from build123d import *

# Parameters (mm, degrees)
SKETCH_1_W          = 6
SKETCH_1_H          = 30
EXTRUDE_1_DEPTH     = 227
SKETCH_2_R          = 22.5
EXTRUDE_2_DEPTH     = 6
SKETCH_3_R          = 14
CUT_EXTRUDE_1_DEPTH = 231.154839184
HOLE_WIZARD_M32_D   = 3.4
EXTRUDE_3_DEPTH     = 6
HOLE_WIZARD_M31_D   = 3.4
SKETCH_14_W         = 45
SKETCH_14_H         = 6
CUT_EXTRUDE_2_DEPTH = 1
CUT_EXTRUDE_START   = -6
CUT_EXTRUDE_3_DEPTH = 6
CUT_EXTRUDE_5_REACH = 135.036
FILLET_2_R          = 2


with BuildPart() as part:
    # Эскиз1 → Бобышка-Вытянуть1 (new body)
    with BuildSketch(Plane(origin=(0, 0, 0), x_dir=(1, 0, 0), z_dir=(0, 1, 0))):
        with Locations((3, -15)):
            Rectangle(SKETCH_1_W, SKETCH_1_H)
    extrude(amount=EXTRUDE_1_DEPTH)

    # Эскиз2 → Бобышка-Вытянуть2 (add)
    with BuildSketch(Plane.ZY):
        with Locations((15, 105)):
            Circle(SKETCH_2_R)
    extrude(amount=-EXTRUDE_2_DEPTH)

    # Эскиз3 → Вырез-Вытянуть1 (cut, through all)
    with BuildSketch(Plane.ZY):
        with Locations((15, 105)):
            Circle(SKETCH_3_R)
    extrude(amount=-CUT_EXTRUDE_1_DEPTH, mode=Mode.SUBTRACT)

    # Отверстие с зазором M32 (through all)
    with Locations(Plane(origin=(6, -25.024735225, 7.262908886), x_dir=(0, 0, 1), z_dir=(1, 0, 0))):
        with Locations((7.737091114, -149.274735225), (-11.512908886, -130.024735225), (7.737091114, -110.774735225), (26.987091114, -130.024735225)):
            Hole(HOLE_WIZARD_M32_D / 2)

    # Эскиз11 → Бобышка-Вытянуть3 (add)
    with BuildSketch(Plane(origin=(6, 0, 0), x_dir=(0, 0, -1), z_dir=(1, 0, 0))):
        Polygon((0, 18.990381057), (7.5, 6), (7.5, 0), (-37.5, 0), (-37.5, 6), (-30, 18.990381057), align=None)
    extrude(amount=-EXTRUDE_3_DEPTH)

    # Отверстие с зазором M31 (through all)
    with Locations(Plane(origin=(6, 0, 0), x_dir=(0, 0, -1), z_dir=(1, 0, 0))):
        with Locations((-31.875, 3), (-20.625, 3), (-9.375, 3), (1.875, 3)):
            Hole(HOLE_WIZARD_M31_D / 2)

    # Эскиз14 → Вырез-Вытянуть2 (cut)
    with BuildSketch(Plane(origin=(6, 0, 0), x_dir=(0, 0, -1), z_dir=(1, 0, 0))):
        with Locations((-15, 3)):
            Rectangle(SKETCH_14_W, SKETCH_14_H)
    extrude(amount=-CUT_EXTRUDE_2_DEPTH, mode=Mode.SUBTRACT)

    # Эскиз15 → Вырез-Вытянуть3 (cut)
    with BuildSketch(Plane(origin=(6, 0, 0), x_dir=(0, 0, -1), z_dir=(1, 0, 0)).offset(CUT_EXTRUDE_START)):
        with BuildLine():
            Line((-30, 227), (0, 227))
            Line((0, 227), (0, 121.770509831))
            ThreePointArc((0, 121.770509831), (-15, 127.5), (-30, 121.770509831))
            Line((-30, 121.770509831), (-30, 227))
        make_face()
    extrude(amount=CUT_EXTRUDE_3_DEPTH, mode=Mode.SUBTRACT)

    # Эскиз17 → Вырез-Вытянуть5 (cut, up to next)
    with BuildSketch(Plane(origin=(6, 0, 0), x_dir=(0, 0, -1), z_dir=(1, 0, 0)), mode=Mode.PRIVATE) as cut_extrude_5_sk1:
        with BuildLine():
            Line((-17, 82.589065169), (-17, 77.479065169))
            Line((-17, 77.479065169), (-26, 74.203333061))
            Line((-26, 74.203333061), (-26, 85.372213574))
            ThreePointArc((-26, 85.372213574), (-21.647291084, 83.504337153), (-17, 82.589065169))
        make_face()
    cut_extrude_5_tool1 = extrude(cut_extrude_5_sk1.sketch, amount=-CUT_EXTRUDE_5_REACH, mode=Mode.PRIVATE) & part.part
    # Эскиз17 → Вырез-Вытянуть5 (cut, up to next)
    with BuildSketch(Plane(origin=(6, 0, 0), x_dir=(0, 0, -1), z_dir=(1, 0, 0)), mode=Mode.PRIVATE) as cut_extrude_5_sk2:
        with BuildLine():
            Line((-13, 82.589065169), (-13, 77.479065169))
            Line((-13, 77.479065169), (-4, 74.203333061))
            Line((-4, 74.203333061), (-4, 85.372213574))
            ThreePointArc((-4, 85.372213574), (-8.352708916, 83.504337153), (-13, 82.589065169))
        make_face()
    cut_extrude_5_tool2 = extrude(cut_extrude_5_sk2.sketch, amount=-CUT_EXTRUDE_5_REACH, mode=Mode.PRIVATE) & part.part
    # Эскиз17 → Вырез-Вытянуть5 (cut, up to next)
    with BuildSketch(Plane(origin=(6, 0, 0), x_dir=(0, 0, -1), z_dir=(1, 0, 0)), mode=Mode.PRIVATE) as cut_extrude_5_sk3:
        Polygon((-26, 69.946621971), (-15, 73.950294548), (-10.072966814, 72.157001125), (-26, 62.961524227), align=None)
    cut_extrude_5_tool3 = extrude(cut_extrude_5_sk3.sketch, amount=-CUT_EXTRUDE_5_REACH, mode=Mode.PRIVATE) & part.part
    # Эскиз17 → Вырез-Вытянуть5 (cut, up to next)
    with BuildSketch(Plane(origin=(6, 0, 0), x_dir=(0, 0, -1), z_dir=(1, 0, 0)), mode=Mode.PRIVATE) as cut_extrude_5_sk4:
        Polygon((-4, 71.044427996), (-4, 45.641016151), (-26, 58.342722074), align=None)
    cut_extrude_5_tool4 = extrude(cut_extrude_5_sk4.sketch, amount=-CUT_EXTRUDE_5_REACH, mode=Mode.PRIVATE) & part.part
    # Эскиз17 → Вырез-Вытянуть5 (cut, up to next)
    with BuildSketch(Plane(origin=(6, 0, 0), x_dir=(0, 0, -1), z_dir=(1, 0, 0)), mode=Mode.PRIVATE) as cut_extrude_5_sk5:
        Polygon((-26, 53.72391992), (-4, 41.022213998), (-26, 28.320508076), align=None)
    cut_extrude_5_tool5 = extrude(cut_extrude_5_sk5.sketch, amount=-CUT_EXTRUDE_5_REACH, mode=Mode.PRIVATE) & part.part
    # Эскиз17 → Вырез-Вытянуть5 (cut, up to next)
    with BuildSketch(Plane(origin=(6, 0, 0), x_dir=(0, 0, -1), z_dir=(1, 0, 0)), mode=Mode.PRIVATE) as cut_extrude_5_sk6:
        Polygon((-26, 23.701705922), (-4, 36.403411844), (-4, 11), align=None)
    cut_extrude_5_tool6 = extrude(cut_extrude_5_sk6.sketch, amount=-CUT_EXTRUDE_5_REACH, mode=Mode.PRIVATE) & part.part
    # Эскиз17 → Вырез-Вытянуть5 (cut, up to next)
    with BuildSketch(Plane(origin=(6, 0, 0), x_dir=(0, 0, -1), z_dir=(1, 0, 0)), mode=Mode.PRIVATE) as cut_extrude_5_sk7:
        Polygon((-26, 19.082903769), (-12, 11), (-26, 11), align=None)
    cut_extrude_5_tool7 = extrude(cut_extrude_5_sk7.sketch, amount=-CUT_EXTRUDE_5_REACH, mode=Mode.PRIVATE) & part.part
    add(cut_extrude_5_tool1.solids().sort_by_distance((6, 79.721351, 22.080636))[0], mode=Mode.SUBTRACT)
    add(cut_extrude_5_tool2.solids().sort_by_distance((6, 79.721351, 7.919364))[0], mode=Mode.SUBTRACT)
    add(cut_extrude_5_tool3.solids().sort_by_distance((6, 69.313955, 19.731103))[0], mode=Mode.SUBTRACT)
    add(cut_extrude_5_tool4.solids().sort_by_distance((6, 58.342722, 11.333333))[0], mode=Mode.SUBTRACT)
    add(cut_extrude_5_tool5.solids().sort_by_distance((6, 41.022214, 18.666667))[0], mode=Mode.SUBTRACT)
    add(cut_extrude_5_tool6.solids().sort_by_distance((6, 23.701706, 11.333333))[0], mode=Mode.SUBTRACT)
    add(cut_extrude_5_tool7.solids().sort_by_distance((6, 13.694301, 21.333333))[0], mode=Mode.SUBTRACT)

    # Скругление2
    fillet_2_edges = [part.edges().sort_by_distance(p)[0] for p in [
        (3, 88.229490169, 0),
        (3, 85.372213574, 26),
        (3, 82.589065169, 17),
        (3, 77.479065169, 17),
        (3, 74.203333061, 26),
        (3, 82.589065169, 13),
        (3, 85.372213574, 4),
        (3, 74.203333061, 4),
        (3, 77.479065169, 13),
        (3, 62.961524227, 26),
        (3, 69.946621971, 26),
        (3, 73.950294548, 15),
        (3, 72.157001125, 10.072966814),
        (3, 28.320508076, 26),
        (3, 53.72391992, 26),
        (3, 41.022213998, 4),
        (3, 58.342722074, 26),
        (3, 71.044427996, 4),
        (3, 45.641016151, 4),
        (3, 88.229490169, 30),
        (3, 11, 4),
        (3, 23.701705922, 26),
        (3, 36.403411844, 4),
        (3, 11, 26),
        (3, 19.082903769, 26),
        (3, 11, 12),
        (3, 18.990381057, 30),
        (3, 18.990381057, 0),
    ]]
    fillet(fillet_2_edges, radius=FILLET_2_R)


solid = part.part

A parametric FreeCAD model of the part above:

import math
import FreeCAD as App
import Part
import Sketcher
from FreeCAD import Vector
Q = App.Units.Quantity


def edges_at(feature, points):
    """Names of the edges that pass closest to the given points."""
    edges = feature.Shape.Edges
    near = lambda p: min(range(len(edges)), key=lambda i: edges[i].distToShape(Part.Vertex(*p))[0])
    return sorted({f"Edge{near(p) + 1}" for p in points})


def add_polygon(sketch, points):
    """Adds a closed chain of lines whose ends are joined by coincident constraints."""
    first, n = sketch.GeometryCount, len(points)
    for a, b in zip(points, points[1:] + points[:1]):
        sketch.addGeometry(Part.LineSegment(App.Vector(*a, 0), App.Vector(*b, 0)), False)
    for i in range(n):
        sketch.addConstraint(Sketcher.Constraint("Coincident", first + i, 2, first + (i + 1) % n, 1))

doc = App.newDocument("Part")
body = doc.addObject("PartDesign::Body", "Body")

# Sketch on XZ plane
sketch1 = body.newObject("Sketcher::SketchObject", "Sketch")
sketch1.AttachmentSupport = (doc.getObject("XZ_Plane"), [""])
sketch1.MapMode = "FlatFace"
add_polygon(sketch1, [(0, 0), (0, 30), (6, 30), (6, 0)])  # lines 0-3
sketch1.addConstraint([
    Sketcher.Constraint("Vertical", 0),
    Sketcher.Constraint("Horizontal", 1),
    Sketcher.Constraint("Vertical", 2),
    Sketcher.Constraint("Horizontal", 3),
    Sketcher.Constraint("Coincident", 3, 2, -1, 1),
    Sketcher.Constraint("DistanceX", 1, 1, 1, 2, Q("6 mm")),
    Sketcher.Constraint("DistanceY", 0, 1, 0, 2, Q("30 mm")),
])
pad1 = body.newObject("PartDesign::Pad", "Pad")
pad1.Profile = sketch1
pad1.Length = 227
pad1.Reversed = True

# Sketch on YZ plane
sketch2 = body.newObject("Sketcher::SketchObject", "Sketch001")
sketch2.AttachmentSupport = (doc.getObject("YZ_Plane"), [""])
sketch2.MapMode = "FlatFace"
sketch2.addGeometry(Part.Circle(Vector(105, 15, 0), Vector(0, 0, 1), 22), False)
sketch2.addConstraint([
    Sketcher.Constraint("Diameter", 0, Q("45 mm")),
    Sketcher.Constraint("DistanceX", -1, 1, 0, 3, Q("105 mm")),
    Sketcher.Constraint("DistanceY", -1, 1, 0, 3, Q("15 mm")),
])
pad2 = body.newObject("PartDesign::Pad", "Pad001")
pad2.Profile = sketch2
pad2.Length = 6

# Sketch on YZ plane
sketch3 = body.newObject("Sketcher::SketchObject", "Sketch002")
sketch3.AttachmentSupport = (doc.getObject("YZ_Plane"), [""])
sketch3.MapMode = "FlatFace"
sketch3.addGeometry(Part.Circle(Vector(105, 15, 0), Vector(0, 0, 1), 14), False)
sketch3.addConstraint([
    Sketcher.Constraint("Diameter", 0, Q("28 mm")),
    Sketcher.Constraint("DistanceX", -1, 1, 0, 3, Q("105 mm")),
    Sketcher.Constraint("DistanceY", -1, 1, 0, 3, Q("15 mm")),
])
pocket1 = body.newObject("PartDesign::Pocket", "Pocket")
pocket1.Profile = sketch3
pocket1.Type = "ThroughAll"
pocket1.Reversed = True

# Sketch on YZ plane
sketch4 = body.newObject("Sketcher::SketchObject", "Sketch003")
sketch4.AttachmentSupport = (doc.getObject("YZ_Plane"), [""])
sketch4.MapMode = "FlatFace"
sketch4.AttachmentOffset = App.Placement(Vector(0, 0, 6), App.Rotation())
sketch4.addGeometry([
    Part.Circle(Vector(124.2, 15, 0), Vector(0, 0, 1), 1.7),
    Part.Circle(Vector(105, -4.2, 0), Vector(0, 0, 1), 1.7),
    Part.Circle(Vector(85.8, 15, 0), Vector(0, 0, 1), 1.7),
    Part.Circle(Vector(105, 34.2, 0), Vector(0, 0, 1), 1.7),
], False)
sketch4.addConstraint([
    Sketcher.Constraint("Equal", 0, 1),
    Sketcher.Constraint("Equal", 1, 2),
    Sketcher.Constraint("Equal", 2, 3),
    Sketcher.Constraint("Horizontal", 0, 3, 2, 3),
    Sketcher.Constraint("Vertical", 1, 3, 3, 3),
    Sketcher.Constraint("Diameter", 0, Q("3.4 mm")),
    Sketcher.Constraint("DistanceY", -1, 1, 0, 3, Q("15 mm")),
    Sketcher.Constraint("DistanceX", -1, 1, 1, 3, Q("105 mm")),
    Sketcher.Constraint("DistanceX", 2, 3, 0, 3, Q("38.5 mm")),
    Sketcher.Constraint("DistanceY", 1, 3, 3, 3, Q("38.5 mm")),
    Sketcher.Constraint("DistanceX", -1, 1, 0, 3, Q("124.25 mm")),
    Sketcher.Constraint("DistanceY", 1, 3, -1, 1, Q("4.25 mm")),
])
doc.recompute()
hole = body.newObject("PartDesign::Hole", "Hole")
hole.Profile = sketch4
hole.ThreadType = "None"
hole.Diameter = 3.4
hole.DepthType = "ThroughAll"

# Sketch on YZ plane
sketch5 = body.newObject("Sketcher::SketchObject", "Sketch004")
sketch5.AttachmentSupport = (doc.getObject("YZ_Plane"), [""])
sketch5.MapMode = "FlatFace"
sketch5.AttachmentOffset = App.Placement(Vector(0, 0, 6), App.Rotation())
add_polygon(sketch5, [(6, -8), (19, 0), (19, 30), (6, 38), (0, 38), (0, -8)])  # lines 0-5
sketch5.addConstraint([
    Sketcher.Constraint("Vertical", 1),
    Sketcher.Constraint("Horizontal", 3),
    Sketcher.Constraint("Vertical", 4),
    Sketcher.Constraint("Horizontal", 5),
    Sketcher.Constraint("PointOnObject", 0, 2, -1),
    Sketcher.Constraint("PointOnObject", 3, 2, -2),
    Sketcher.Constraint("Vertical", 2, 2, 5, 2),
    Sketcher.Constraint("Equal", 0, 2),
    Sketcher.Constraint("DistanceX", 3, 2, 3, 1, Q("6 mm")),
    Sketcher.Constraint("DistanceY", 1, 1, 1, 2, Q("30 mm")),
    Sketcher.Constraint("DistanceY", 4, 2, 4, 1, Q("45 mm")),
    Sketcher.Constraint("Angle", 0, Q("30 deg")),
])
pad3 = body.newObject("PartDesign::Pad", "Pad002")
pad3.Profile = sketch5
pad3.Length = 6
pad3.Reversed = True

# Sketch on YZ plane
sketch6 = body.newObject("Sketcher::SketchObject", "Sketch005")
sketch6.AttachmentSupport = (doc.getObject("YZ_Plane"), [""])
sketch6.MapMode = "FlatFace"
sketch6.AttachmentOffset = App.Placement(Vector(0, 0, 6), App.Rotation())
sketch6.addGeometry([
    Part.Circle(Vector(3, 31.9, 0), Vector(0, 0, 1), 1.7),
    Part.Circle(Vector(3, 20.6, 0), Vector(0, 0, 1), 1.7),
    Part.Circle(Vector(3, 9.4, 0), Vector(0, 0, 1), 1.7),
    Part.Circle(Vector(3, -1.9, 0), Vector(0, 0, 1), 1.7),
], False)
sketch6.addConstraint([
    Sketcher.Constraint("Equal", 0, 1),
    Sketcher.Constraint("Equal", 1, 2),
    Sketcher.Constraint("Equal", 2, 3),
    Sketcher.Constraint("Vertical", 0, 3, 1, 3),
    Sketcher.Constraint("Vertical", 1, 3, 2, 3),
    Sketcher.Constraint("Vertical", 2, 3, 3, 3),
    Sketcher.Constraint("Diameter", 0, Q("3.4 mm")),
    Sketcher.Constraint("DistanceX", -1, 1, 0, 3, Q("3 mm")),
    Sketcher.Constraint("DistanceY", 2, 3, 0, 3, Q("22.5 mm")),
    Sketcher.Constraint("DistanceY", 3, 3, 1, 3, Q("22.5 mm")),
    Sketcher.Constraint("DistanceY", 1, 3, 0, 3, Q("11.25 mm")),
    Sketcher.Constraint("DistanceY", -1, 1, 0, 3, Q("31.875 mm")),
])
doc.recompute()
hole2 = body.newObject("PartDesign::Hole", "Hole001")
hole2.Profile = sketch6
hole2.ThreadType = "None"
hole2.Diameter = 3.4
hole2.DepthType = "ThroughAll"

# Sketch on YZ plane
sketch7 = body.newObject("Sketcher::SketchObject", "Sketch006")
sketch7.AttachmentSupport = (doc.getObject("YZ_Plane"), [""])
sketch7.MapMode = "FlatFace"
sketch7.AttachmentOffset = App.Placement(Vector(0, 0, 6), App.Rotation())
add_polygon(sketch7, [(6, 38), (0, 38), (0, -8), (6, -8)])  # lines 0-3
sketch7.addConstraint([
    Sketcher.Constraint("Horizontal", 0),
    Sketcher.Constraint("Vertical", 1),
    Sketcher.Constraint("Horizontal", 2),
    Sketcher.Constraint("Vertical", 3),
    Sketcher.Constraint("PointOnObject", 0, 2, -2),
    Sketcher.Constraint("DistanceX", 0, 2, 0, 1, Q("6 mm")),
    Sketcher.Constraint("DistanceY", 1, 2, 1, 1, Q("45 mm")),
    Sketcher.Constraint("DistanceY", -1, 1, 0, 2, Q("37.5 mm")),
])
pocket2 = body.newObject("PartDesign::Pocket", "Pocket001")
pocket2.Profile = sketch7
pocket2.Length = 1

# Sketch on YZ plane
sketch8 = body.newObject("Sketcher::SketchObject", "Sketch007")
sketch8.AttachmentSupport = (doc.getObject("YZ_Plane"), [""])
sketch8.MapMode = "FlatFace"
sketch8.addGeometry([
    Part.LineSegment(Vector(227, 0, 0), Vector(227, 30, 0)),
    Part.LineSegment(Vector(227, 30, 0), Vector(122, 30, 0)),
    Part.ArcOfCircle(Part.Circle(Vector(105, 15, 0), Vector(0, 0, 1), 22), math.radians(-42), math.radians(42)),
    Part.LineSegment(Vector(122, 0, 0), Vector(227, 0, 0)),
], False)
sketch8.addConstraint([
    Sketcher.Constraint("Coincident", 0, 2, 1, 1),
    Sketcher.Constraint("Coincident", 1, 2, 2, 2),
    Sketcher.Constraint("Coincident", 2, 1, 3, 1),
    Sketcher.Constraint("Coincident", 3, 2, 0, 1),
    Sketcher.Constraint("Vertical", 0),
    Sketcher.Constraint("Horizontal", 1),
    Sketcher.Constraint("Horizontal", 3),
    Sketcher.Constraint("PointOnObject", 2, 1, -1),
    Sketcher.Constraint("Vertical", 1, 2, 2, 1),
    Sketcher.Constraint("Radius", 2, Q("22.5 mm")),
    Sketcher.Constraint("DistanceY", 0, 1, 0, 2, Q("30 mm")),
    Sketcher.Constraint("DistanceX", -1, 1, 2, 3, Q("105 mm")),
    Sketcher.Constraint("DistanceX", -1, 1, 0, 2, Q("227 mm")),
])
pocket3 = body.newObject("PartDesign::Pocket", "Pocket002")
pocket3.Profile = sketch8
pocket3.Length = 6
pocket3.Reversed = True

# Sketch on YZ plane
sketch9 = body.newObject("Sketcher::SketchObject", "Sketch008")
sketch9.AttachmentSupport = (doc.getObject("YZ_Plane"), [""])
sketch9.MapMode = "FlatFace"
sketch9.AttachmentOffset = App.Placement(Vector(0, 0, 6), App.Rotation())
sketch9.addGeometry([
    Part.LineSegment(Vector(77, 17, 0), Vector(83, 17, 0)),
    Part.ArcOfCircle(Part.Circle(Vector(105, 15, 0), Vector(0, 0, 1), 23), math.radians(151), math.radians(175)),
    Part.LineSegment(Vector(85, 26, 0), Vector(74, 26, 0)),
    Part.LineSegment(Vector(74, 26, 0), Vector(77, 17, 0)),
], False)
sketch9.addConstraint([
    Sketcher.Constraint("Coincident", 0, 2, 1, 2),
    Sketcher.Constraint("Coincident", 1, 1, 2, 1),
    Sketcher.Constraint("Coincident", 2, 2, 3, 1),
    Sketcher.Constraint("Coincident", 3, 2, 0, 1),
    Sketcher.Constraint("Horizontal", 0),
    Sketcher.Constraint("Horizontal", 2),
    Sketcher.Constraint("Radius", 1, Q("22.5 mm")),
    Sketcher.Constraint("Angle", 3, Q("-70 deg")),
    Sketcher.Constraint("DistanceX", -1, 1, 1, 3, Q("105 mm")),
    Sketcher.Constraint("DistanceY", -1, 1, 1, 3, Q("15 mm")),
    Sketcher.Constraint("DistanceY", -1, 1, 0, 2, Q("17 mm")),
    Sketcher.Constraint("DistanceY", -1, 1, 1, 1, Q("26 mm")),
    Sketcher.Constraint("DistanceX", 0, 1, 0, 2, Q("5.11 mm")),
])
pocket4 = body.newObject("PartDesign::Pocket", "Pocket003")
pocket4.Profile = sketch9
pocket4.Type = "UpToFirst"

# Sketch on YZ plane
sketch10 = body.newObject("Sketcher::SketchObject", "Sketch009")
sketch10.AttachmentSupport = (doc.getObject("YZ_Plane"), [""])
sketch10.MapMode = "FlatFace"
sketch10.AttachmentOffset = App.Placement(Vector(0, 0, 6), App.Rotation())
sketch10.addGeometry([
    Part.LineSegment(Vector(83, 13, 0), Vector(77, 13, 0)),
    Part.LineSegment(Vector(77, 13, 0), Vector(74, 4, 0)),
    Part.LineSegment(Vector(74, 4, 0), Vector(85, 4, 0)),
    Part.ArcOfCircle(Part.Circle(Vector(105, 15, 0), Vector(0, 0, 1), 23), math.radians(-175), math.radians(-151)),
], False)
sketch10.addConstraint([
    Sketcher.Constraint("Coincident", 0, 2, 1, 1),
    Sketcher.Constraint("Coincident", 1, 2, 2, 1),
    Sketcher.Constraint("Coincident", 2, 2, 3, 2),
    Sketcher.Constraint("Coincident", 3, 1, 0, 1),
    Sketcher.Constraint("Horizontal", 0),
    Sketcher.Constraint("Horizontal", 2),
    Sketcher.Constraint("Radius", 3, Q("22.5 mm")),
    Sketcher.Constraint("Angle", 1, Q("-110 deg")),
    Sketcher.Constraint("DistanceX", -1, 1, 3, 3, Q("105 mm")),
    Sketcher.Constraint("DistanceY", -1, 1, 3, 3, Q("15 mm")),
    Sketcher.Constraint("DistanceY", -1, 1, 0, 2, Q("13 mm")),
    Sketcher.Constraint("DistanceY", -1, 1, 1, 2, Q("4 mm")),
    Sketcher.Constraint("DistanceX", 0, 2, 0, 1, Q("5.11 mm")),
])
pocket5 = body.newObject("PartDesign::Pocket", "Pocket004")
pocket5.Profile = sketch10
pocket5.Type = "UpToFirst"

# Sketch on YZ plane
sketch11 = body.newObject("Sketcher::SketchObject", "Sketch010")
sketch11.AttachmentSupport = (doc.getObject("YZ_Plane"), [""])
sketch11.MapMode = "FlatFace"
sketch11.AttachmentOffset = App.Placement(Vector(0, 0, 6), App.Rotation())
add_polygon(sketch11, [(74, 15), (70, 26), (63, 26), (72, 10)])  # lines 0-3
sketch11.addConstraint([
    Sketcher.Constraint("Horizontal", 1),
    Sketcher.Constraint("Angle", 0, Q("110 deg")),
    Sketcher.Constraint("Angle", 2, Q("-60 deg")),
    Sketcher.Constraint("Angle", 3, Q("70 deg")),
    Sketcher.Constraint("DistanceY", -1, 1, 0, 2, Q("26 mm")),
    Sketcher.Constraint("DistanceY", -1, 1, 3, 2, Q("15 mm")),
    Sketcher.Constraint("DistanceX", -1, 1, 2, 2, Q("72.157001 mm")),
    Sketcher.Constraint("Distance", 3, Q("5.243239 mm")),
])
pocket6 = body.newObject("PartDesign::Pocket", "Pocket005")
pocket6.Profile = sketch11
pocket6.Type = "UpToFirst"

# Sketch on YZ plane
sketch12 = body.newObject("Sketcher::SketchObject", "Sketch011")
sketch12.AttachmentSupport = (doc.getObject("YZ_Plane"), [""])
sketch12.MapMode = "FlatFace"
sketch12.AttachmentOffset = App.Placement(Vector(0, 0, 6), App.Rotation())
add_polygon(sketch12, [(46, 4), (71, 4), (58, 26)])  # lines 0-2
sketch12.addConstraint([
    Sketcher.Constraint("Horizontal", 0),
    Sketcher.Constraint("Equal", 1, 2),
    Sketcher.Constraint("Angle", 1, Q("120 deg")),
    Sketcher.Constraint("DistanceY", -1, 1, 0, 2, Q("4 mm")),
    Sketcher.Constraint("DistanceY", -1, 1, 1, 2, Q("26 mm")),
    Sketcher.Constraint("DistanceX", -1, 1, 0, 2, Q("71.044428 mm")),
])
pocket7 = body.newObject("PartDesign::Pocket", "Pocket006")
pocket7.Profile = sketch12
pocket7.Type = "UpToFirst"

# Sketch on YZ plane
sketch13 = body.newObject("Sketcher::SketchObject", "Sketch012")
sketch13.AttachmentSupport = (doc.getObject("YZ_Plane"), [""])
sketch13.MapMode = "FlatFace"
sketch13.AttachmentOffset = App.Placement(Vector(0, 0, 6), App.Rotation())
add_polygon(sketch13, [(41, 4), (54, 26), (28, 26)])  # lines 0-2
sketch13.addConstraint([
    Sketcher.Constraint("Horizontal", 1),
    Sketcher.Constraint("Equal", 0, 2),
    Sketcher.Constraint("Angle", 0, Q("60 deg")),
    Sketcher.Constraint("DistanceY", -1, 1, 0, 2, Q("26 mm")),
    Sketcher.Constraint("DistanceY", -1, 1, 2, 2, Q("4 mm")),
    Sketcher.Constraint("DistanceX", -1, 1, 0, 2, Q("53.72392 mm")),
])
pocket8 = body.newObject("PartDesign::Pocket", "Pocket007")
pocket8.Profile = sketch13
pocket8.Type = "UpToFirst"

# Sketch on YZ plane
sketch14 = body.newObject("Sketcher::SketchObject", "Sketch013")
sketch14.AttachmentSupport = (doc.getObject("YZ_Plane"), [""])
sketch14.MapMode = "FlatFace"
sketch14.AttachmentOffset = App.Placement(Vector(0, 0, 6), App.Rotation())
add_polygon(sketch14, [(36, 4), (24, 26), (11, 4)])  # lines 0-2
sketch14.addConstraint([
    Sketcher.Constraint("Horizontal", 2),
    Sketcher.Constraint("Equal", 0, 1),
    Sketcher.Constraint("Angle", 0, Q("120 deg")),
    Sketcher.Constraint("DistanceY", -1, 1, 0, 2, Q("26 mm")),
    Sketcher.Constraint("DistanceX", -1, 1, 1, 2, Q("11 mm")),
    Sketcher.Constraint("DistanceY", -1, 1, 1, 2, Q("4 mm")),
])
pocket9 = body.newObject("PartDesign::Pocket", "Pocket008")
pocket9.Profile = sketch14
pocket9.Type = "UpToFirst"

# Sketch on YZ plane
sketch15 = body.newObject("Sketcher::SketchObject", "Sketch014")
sketch15.AttachmentSupport = (doc.getObject("YZ_Plane"), [""])
sketch15.MapMode = "FlatFace"
sketch15.AttachmentOffset = App.Placement(Vector(0, 0, 6), App.Rotation())
add_polygon(sketch15, [(11, 12), (19, 26), (11, 26)])  # lines 0-2
sketch15.addConstraint([
    Sketcher.Constraint("Horizontal", 1),
    Sketcher.Constraint("Vertical", 2),
    Sketcher.Constraint("DistanceY", 2, 2, 2, 1, Q("14 mm")),
    Sketcher.Constraint("Angle", 0, Q("60 deg")),
    Sketcher.Constraint("DistanceY", -1, 1, 0, 2, Q("26 mm")),
    Sketcher.Constraint("DistanceX", -1, 1, 1, 2, Q("11 mm")),
])
pocket10 = body.newObject("PartDesign::Pocket", "Pocket009")
pocket10.Profile = sketch15
pocket10.Type = "UpToFirst"
doc.recompute()

fillet = body.newObject("PartDesign::Fillet", "Fillet")
fillet.Base = (pocket10, edges_at(pocket10, [
    (3, 88.229, 0),
    (3, 85.372, 26),
    (3, 82.589, 17),
    (3, 77.479, 17),
    (3, 74.203, 26),
    (3, 82.589, 13),
    (3, 85.372, 4),
    (3, 74.203, 4),
    (3, 77.479, 13),
    (3, 62.962, 26),
    (3, 69.947, 26),
    (3, 73.95, 15),
    (3, 72.157, 10.073),
    (3, 28.321, 26),
    (3, 53.724, 26),
    (3, 41.022, 4),
    (3, 58.343, 26),
    (3, 71.044, 4),
    (3, 45.641, 4),
    (3, 88.229, 30),
    (3, 11, 4),
    (3, 23.702, 26),
    (3, 36.403, 4),
    (3, 11, 26),
    (3, 19.083, 26),
    (3, 11, 12),
    (3, 18.99, 30),
    (3, 18.99, 0),
]))
fillet.Radius = 2

doc.recompute()
